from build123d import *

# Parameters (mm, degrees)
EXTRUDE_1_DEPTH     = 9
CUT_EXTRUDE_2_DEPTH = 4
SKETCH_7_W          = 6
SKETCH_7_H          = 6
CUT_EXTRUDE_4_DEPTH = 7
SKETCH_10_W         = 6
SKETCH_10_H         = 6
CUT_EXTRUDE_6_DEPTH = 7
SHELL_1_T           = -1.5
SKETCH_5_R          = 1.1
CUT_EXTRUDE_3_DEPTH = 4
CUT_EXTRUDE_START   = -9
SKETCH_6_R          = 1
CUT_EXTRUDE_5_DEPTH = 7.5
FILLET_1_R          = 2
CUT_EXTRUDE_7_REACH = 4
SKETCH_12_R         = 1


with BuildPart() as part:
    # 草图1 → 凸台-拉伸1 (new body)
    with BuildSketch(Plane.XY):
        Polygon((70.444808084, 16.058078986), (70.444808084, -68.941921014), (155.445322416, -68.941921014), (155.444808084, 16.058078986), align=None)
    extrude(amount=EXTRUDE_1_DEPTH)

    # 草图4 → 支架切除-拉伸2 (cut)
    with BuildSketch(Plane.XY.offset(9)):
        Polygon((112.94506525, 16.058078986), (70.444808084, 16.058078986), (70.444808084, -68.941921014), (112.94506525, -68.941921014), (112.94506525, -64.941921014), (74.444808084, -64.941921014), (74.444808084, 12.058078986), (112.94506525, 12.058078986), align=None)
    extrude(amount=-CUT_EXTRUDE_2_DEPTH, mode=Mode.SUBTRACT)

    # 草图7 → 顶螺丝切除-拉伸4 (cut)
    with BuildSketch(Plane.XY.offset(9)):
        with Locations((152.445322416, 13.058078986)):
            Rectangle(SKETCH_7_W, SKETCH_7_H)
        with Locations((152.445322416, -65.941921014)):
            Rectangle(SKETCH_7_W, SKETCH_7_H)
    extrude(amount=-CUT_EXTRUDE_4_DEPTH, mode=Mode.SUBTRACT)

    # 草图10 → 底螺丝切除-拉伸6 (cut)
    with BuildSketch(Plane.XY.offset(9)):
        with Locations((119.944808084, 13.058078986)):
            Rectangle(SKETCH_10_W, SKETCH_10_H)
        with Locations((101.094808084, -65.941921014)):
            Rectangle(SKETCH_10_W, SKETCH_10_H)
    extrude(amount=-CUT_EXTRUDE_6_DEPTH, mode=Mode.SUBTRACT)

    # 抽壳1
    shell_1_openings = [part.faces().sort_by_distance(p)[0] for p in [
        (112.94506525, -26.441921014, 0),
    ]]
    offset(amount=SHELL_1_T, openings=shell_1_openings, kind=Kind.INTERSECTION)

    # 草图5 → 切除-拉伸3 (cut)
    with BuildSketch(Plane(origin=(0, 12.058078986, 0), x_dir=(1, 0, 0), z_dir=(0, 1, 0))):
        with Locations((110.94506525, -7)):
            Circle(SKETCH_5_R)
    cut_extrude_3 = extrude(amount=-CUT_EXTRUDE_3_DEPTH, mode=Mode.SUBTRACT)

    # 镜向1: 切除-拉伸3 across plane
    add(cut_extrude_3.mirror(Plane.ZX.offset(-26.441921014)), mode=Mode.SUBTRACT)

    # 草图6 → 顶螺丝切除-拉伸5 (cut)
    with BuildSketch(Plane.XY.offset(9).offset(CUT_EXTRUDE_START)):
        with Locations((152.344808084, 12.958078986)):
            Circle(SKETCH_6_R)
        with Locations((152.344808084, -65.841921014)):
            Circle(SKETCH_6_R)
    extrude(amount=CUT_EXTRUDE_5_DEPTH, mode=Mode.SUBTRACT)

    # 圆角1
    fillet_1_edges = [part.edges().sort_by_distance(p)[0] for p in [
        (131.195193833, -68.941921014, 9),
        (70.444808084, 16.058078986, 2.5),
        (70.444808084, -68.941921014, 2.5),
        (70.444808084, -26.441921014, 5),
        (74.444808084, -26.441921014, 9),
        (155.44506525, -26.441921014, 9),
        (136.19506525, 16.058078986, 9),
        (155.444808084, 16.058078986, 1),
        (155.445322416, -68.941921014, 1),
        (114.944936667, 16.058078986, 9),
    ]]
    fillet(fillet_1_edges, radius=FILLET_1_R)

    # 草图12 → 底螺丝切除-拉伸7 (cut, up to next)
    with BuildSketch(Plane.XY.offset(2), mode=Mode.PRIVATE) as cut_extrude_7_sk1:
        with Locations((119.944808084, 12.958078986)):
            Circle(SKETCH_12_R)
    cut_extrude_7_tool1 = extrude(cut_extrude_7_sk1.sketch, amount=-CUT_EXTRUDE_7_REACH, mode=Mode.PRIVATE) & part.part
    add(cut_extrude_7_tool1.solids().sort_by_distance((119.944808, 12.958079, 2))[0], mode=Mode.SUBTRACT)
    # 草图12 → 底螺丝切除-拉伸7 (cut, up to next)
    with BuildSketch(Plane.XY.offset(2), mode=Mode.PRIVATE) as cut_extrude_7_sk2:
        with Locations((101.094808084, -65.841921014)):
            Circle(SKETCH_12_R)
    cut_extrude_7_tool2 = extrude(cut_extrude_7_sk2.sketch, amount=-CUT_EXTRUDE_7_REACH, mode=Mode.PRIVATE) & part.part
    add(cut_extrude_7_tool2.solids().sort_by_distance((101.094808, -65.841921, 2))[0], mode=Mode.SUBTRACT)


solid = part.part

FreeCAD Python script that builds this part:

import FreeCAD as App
import Part
import Sketcher

V = App.Vector


def edges_at(feature, points):
    """Names of the edges that pass closest to the given points."""
    edges = feature.Shape.Edges
    near = lambda p: min(range(len(edges)), key=lambda i: edges[i].distToShape(Part.Vertex(*p))[0])
    return sorted({f"Edge{near(p) + 1}" for p in points})


def faces_at(feature, points):
    """Names of the faces that lie closest to the given points."""
    faces = feature.Shape.Faces
    near = lambda p: min(range(len(faces)), key=lambda i: faces[i].distToShape(Part.Vertex(*p))[0])
    return sorted({f"Face{near(p) + 1}" for p in points})

doc = App.newDocument("Part")
body = doc.addObject("PartDesign::Body", "Body")

sketch1 = body.newObject("Sketcher::SketchObject", "Sketch")
sketch1.AttachmentSupport = (doc.getObject("XY_Plane"), [""])
sketch1.MapMode = "FlatFace"
sketch1.addGeometry(Part.LineSegment(V(70, 16, 0), V(70, -69, 0)), False)
sketch1.addGeometry(Part.LineSegment(V(70, -69, 0), V(155, -69, 0)), False)
sketch1.addGeometry(Part.LineSegment(V(155, -69, 0), V(155, 16, 0)), False)
sketch1.addGeometry(Part.LineSegment(V(155, 16, 0), V(70, 16, 0)), False)
sketch1.addConstraint(Sketcher.Constraint("Coincident", 0, 2, 1, 1))
sketch1.addConstraint(Sketcher.Constraint("Coincident", 1, 2, 2, 1))
sketch1.addConstraint(Sketcher.Constraint("Coincident", 2, 2, 3, 1))
sketch1.addConstraint(Sketcher.Constraint("Coincident", 3, 2, 0, 1))
sketch1.addConstraint(Sketcher.Constraint("Vertical", 0))
sketch1.addConstraint(Sketcher.Constraint("Horizontal", 1))
sketch1.addConstraint(Sketcher.Constraint("Horizontal", 3))
sketch1.addConstraint(Sketcher.Constraint("Equal", 3, 0))
sketch1.addConstraint(Sketcher.Constraint("DistanceX", 3, 2, 3, 1, 85.0))
sketch1.addConstraint(Sketcher.Constraint("DistanceX", 1, 1, 1, 2, 85.000514))
sketch1.addConstraint(Sketcher.Constraint("DistanceX", -1, 1, 0, 2, 70.444808))
sketch1.addConstraint(Sketcher.Constraint("DistanceY", 0, 2, -1, 1, 68.941921))
pad1 = body.newObject("PartDesign::Pad", "Pad")
pad1.Profile = sketch1
pad1.Length = 9

sketch2 = body.newObject("Sketcher::SketchObject", "Sketch001")
sketch2.AttachmentSupport = (doc.getObject("XY_Plane"), [""])
sketch2.MapMode = "FlatFace"
sketch2.AttachmentOffset = App.Placement(V(0, 0, 9), App.Rotation())
sketch2.addGeometry(Part.LineSegment(V(112.9, 16.1, 0), V(70.4, 16.1, 0)), False)
sketch2.addGeometry(Part.LineSegment(V(70.4, 16.1, 0), V(70.4, -68.9, 0)), False)
sketch2.addGeometry(Part.LineSegment(V(70.4, -68.9, 0), V(112.9, -68.9, 0)), False)
sketch2.addGeometry(Part.LineSegment(V(112.9, -68.9, 0), V(112.9, -64.9, 0)), False)
sketch2.addGeometry(Part.LineSegment(V(112.9, -64.9, 0), V(74.4, -64.9, 0)), False)
sketch2.addGeometry(Part.LineSegment(V(74.4, -64.9, 0), V(74.4, 12.1, 0)), False)
sketch2.addGeometry(Part.LineSegment(V(74.4, 12.1, 0), V(112.9, 12.1, 0)), False)
sketch2.addGeometry(Part.LineSegment(V(112.9, 12.1, 0), V(112.9, 16.1, 0)), False)
sketch2.addConstraint(Sketcher.Constraint("Coincident", 0, 2, 1, 1))
sketch2.addConstraint(Sketcher.Constraint("Coincident", 1, 2, 2, 1))
sketch2.addConstraint(Sketcher.Constraint("Coincident", 2, 2, 3, 1))
sketch2.addConstraint(Sketcher.Constraint("Coincident", 3, 2, 4, 1))
sketch2.addConstraint(Sketcher.Constraint("Coincident", 4, 2, 5, 1))
sketch2.addConstraint(Sketcher.Constraint("Coincident", 5, 2, 6, 1))
sketch2.addConstraint(Sketcher.Constraint("Coincident", 6, 2, 7, 1))
sketch2.addConstraint(Sketcher.Constraint("Coincident", 7, 2, 0, 1))
sketch2.addConstraint(Sketcher.Constraint("Horizontal", 0))
sketch2.addConstraint(Sketcher.Constraint("Vertical", 1))
sketch2.addConstraint(Sketcher.Constraint("Horizontal", 2))
sketch2.addConstraint(Sketcher.Constraint("Vertical", 3))
sketch2.addConstraint(Sketcher.Constraint("Horizontal", 4))
sketch2.addConstraint(Sketcher.Constraint("Vertical", 5))
sketch2.addConstraint(Sketcher.Constraint("Horizontal", 6))
sketch2.addConstraint(Sketcher.Constraint("Vertical", 7))
sketch2.addConstraint(Sketcher.Constraint("Vertical", 3, 2, 6, 2))
sketch2.addConstraint(Sketcher.Constraint("Equal", 3, 7))
sketch2.addConstraint(Sketcher.Constraint("DistanceY", 1, 2, 1, 1, 85.0))
sketch2.addConstraint(Sketcher.Constraint("DistanceY", 3, 1, 3, 2, 4.0))
sketch2.addConstraint(Sketcher.Constraint("DistanceX", 1, 2, 4, 2, 4.0))
sketch2.addConstraint(Sketcher.Constraint("DistanceX", 0, 2, 0, 1, 42.500257))
sketch2.addConstraint(Sketcher.Constraint("DistanceX", -1, 1, 0, 2, 70.444808))
sketch2.addConstraint(Sketcher.Constraint("DistanceY", -1, 1, 0, 2, 16.058079))
pocket1 = body.newObject("PartDesign::Pocket", "Pocket")
pocket1.Profile = sketch2
pocket1.Length = 4

sketch3 = body.newObject("Sketcher::SketchObject", "Sketch002")
sketch3.AttachmentSupport = (doc.getObject("XY_Plane"), [""])
sketch3.MapMode = "FlatFace"
sketch3.AttachmentOffset = App.Placement(V(0, 0, 9), App.Rotation())
sketch3.addGeometry(Part.LineSegment(V(149, 16, 0), V(149, 10, 0)), False)
sketch3.addGeometry(Part.LineSegment(V(149, 10, 0), V(155, 10, 0)), False)
sketch3.addGeometry(Part.LineSegment(V(155, 10, 0), V(155, 16, 0)), False)
sketch3.addGeometry(Part.LineSegment(V(155, 16, 0), V(149, 16, 0)), False)
sketch3.addGeometry(Part.LineSegment(V(149, -63, 0), V(149, -69, 0)), False)
sketch3.addGeometry(Part.LineSegment(V(149, -69, 0), V(155, -69, 0)), False)
sketch3.addGeometry(Part.LineSegment(V(155, -69, 0), V(155, -63, 0)), False)
sketch3.addGeometry(Part.LineSegment(V(155, -63, 0), V(149, -63, 0)), False)
sketch3.addConstraint(Sketcher.Constraint("Coincident", 0, 2, 1, 1))
sketch3.addConstraint(Sketcher.Constraint("Coincident", 1, 2, 2, 1))
sketch3.addConstraint(Sketcher.Constraint("Coincident", 2, 2, 3, 1))
sketch3.addConstraint(Sketcher.Constraint("Coincident", 3, 2, 0, 1))
sketch3.addConstraint(Sketcher.Constraint("Coincident", 4, 2, 5, 1))
sketch3.addConstraint(Sketcher.Constraint("Coincident", 5, 2, 6, 1))
sketch3.addConstraint(Sketcher.Constraint("Coincident", 6, 2, 7, 1))
sketch3.addConstraint(Sketcher.Constraint("Coincident", 7, 2, 4, 1))
sketch3.addConstraint(Sketcher.Constraint("Vertical", 0))
sketch3.addConstraint(Sketcher.Constraint("Horizontal", 1))
sketch3.addConstraint(Sketcher.Constraint("Vertical", 2))
sketch3.addConstraint(Sketcher.Constraint("Horizontal", 3))
sketch3.addConstraint(Sketcher.Constraint("Vertical", 4))
sketch3.addConstraint(Sketcher.Constraint("Horizontal", 5))
sketch3.addConstraint(Sketcher.Constraint("Vertical", 6))
sketch3.addConstraint(Sketcher.Constraint("Horizontal", 7))
sketch3.addConstraint(Sketcher.Constraint("Vertical", 3, 2, 4, 2))
sketch3.addConstraint(Sketcher.Constraint("Vertical", 2, 2, 5, 2))
sketch3.addConstraint(Sketcher.Constraint("Equal", 7, 0))
sketch3.addConstraint(Sketcher.Constraint("Equal", 2, 4))
sketch3.addConstraint(Sketcher.Constraint("DistanceX", 1, 1, 1, 2, 6.0))
sketch3.addConstraint(Sketcher.Constraint("DistanceY", 4, 2, 0, 2, 79.0))
sketch3.addConstraint(Sketcher.Constraint("DistanceY", -1, 1, 0, 2, 10.058079))
sketch3.addConstraint(Sketcher.Constraint("DistanceX", -1, 1, 0, 2, 149.445322))
pocket2 = body.newObject("PartDesign::Pocket", "Pocket001")
pocket2.Profile = sketch3
pocket2.Length = 7

sketch4 = body.newObject("Sketcher::SketchObject", "Sketch003")
sketch4.AttachmentSupport = (doc.getObject("XY_Plane"), [""])
sketch4.MapMode = "FlatFace"
sketch4.AttachmentOffset = App.Placement(V(0, 0, 9), App.Rotation())
sketch4.addGeometry(Part.LineSegment(V(117, 16, 0), V(117, 10, 0)), False)
sketch4.addGeometry(Part.LineSegment(V(117, 10, 0), V(123, 10, 0)), False)
sketch4.addGeometry(Part.LineSegment(V(123, 10, 0), V(123, 16, 0)), False)
sketch4.addGeometry(Part.LineSegment(V(123, 16, 0), V(117, 16, 0)), False)
sketch4.addGeometry(Part.LineSegment(V(98, -63, 0), V(98, -69, 0)), False)
sketch4.addGeometry(Part.LineSegment(V(98, -69, 0), V(104, -69, 0)), False)
sketch4.addGeometry(Part.LineSegment(V(104, -69, 0), V(104, -63, 0)), False)
sketch4.addGeometry(Part.LineSegment(V(104, -63, 0), V(98, -63, 0)), False)
sketch4.addConstraint(Sketcher.Constraint("Coincident", 0, 2, 1, 1))
sketch4.addConstraint(Sketcher.Constraint("Coincident", 1, 2, 2, 1))
sketch4.addConstraint(Sketcher.Constraint("Coincident", 2, 2, 3, 1))
sketch4.addConstraint(Sketcher.Constraint("Coincident", 3, 2, 0, 1))
sketch4.addConstraint(Sketcher.Constraint("Coincident", 4, 2, 5, 1))
sketch4.addConstraint(Sketcher.Constraint("Coincident", 5, 2, 6, 1))
sketch4.addConstraint(Sketcher.Constraint("Coincident", 6, 2, 7, 1))
sketch4.addConstraint(Sketcher.Constraint("Coincident", 7, 2, 4, 1))
sketch4.addConstraint(Sketcher.Constraint("Vertical", 0))
sketch4.addConstraint(Sketcher.Constraint("Horizontal", 1))
sketch4.addConstraint(Sketcher.Constraint("Vertical", 2))
sketch4.addConstraint(Sketcher.Constraint("Horizontal", 3))
sketch4.addConstraint(Sketcher.Constraint("Vertical", 4))
sketch4.addConstraint(Sketcher.Constraint("Horizontal", 5))
sketch4.addConstraint(Sketcher.Constraint("Vertical", 6))
sketch4.addConstraint(Sketcher.Constraint("Horizontal", 7))
sketch4.addConstraint(Sketcher.Constraint("Equal", 3, 5))
sketch4.addConstraint(Sketcher.Constraint("Equal", 7, 0))
sketch4.addConstraint(Sketcher.Constraint("Equal", 2, 4))
sketch4.addConstraint(Sketcher.Constraint("DistanceX", 1, 1, 1, 2, 6.0))
sketch4.addConstraint(Sketcher.Constraint("DistanceY", 4, 2, 0, 2, 79.0))
sketch4.addConstraint(Sketcher.Constraint("DistanceX", 4, 2, 0, 2, 18.85))
sketch4.addConstraint(Sketcher.Constraint("DistanceX", -1, 1, 0, 2, 116.944808))
sketch4.addConstraint(Sketcher.Constraint("DistanceY", -1, 1, 0, 2, 10.058079))
pocket3 = body.newObject("PartDesign::Pocket", "Pocket002")
pocket3.Profile = sketch4
pocket3.Length = 7
doc.recompute()

thickness = body.newObject("PartDesign::Thickness", "Thickness")
thickness.Base = (pocket3, faces_at(pocket3, [(112.945, -26.442, 0)]))
thickness.Value = 1.5
thickness.Reversed = True
thickness.Join = "Intersection"

sketch5 = body.newObject("Sketcher::SketchObject", "Sketch004")
sketch5.AttachmentSupport = (doc.getObject("XZ_Plane"), [""])
sketch5.MapMode = "FlatFace"
sketch5.AttachmentOffset = App.Placement(V(0, 0, -12.058079), App.Rotation())
sketch5.addGeometry(Part.Circle(V(110.9, 7, 0), V(0, 0, 1), 1.1), False)
sketch5.addConstraint(Sketcher.Constraint("Diameter", 0, 2.2))
sketch5.addConstraint(Sketcher.Constraint("DistanceY", -1, 1, 0, 3, 7.0))
sketch5.addConstraint(Sketcher.Constraint("DistanceX", -1, 1, 0, 3, 110.945065))
pocket4 = body.newObject("PartDesign::Pocket", "Pocket003")
pocket4.Profile = sketch5
pocket4.Length = 4
pocket4.Reversed = True
doc.recompute()

datumplane = body.newObject("PartDesign::Plane", "DatumPlane")
datumplane.AttachmentSupport = (doc.getObject("XZ_Plane"), [""])
datumplane.MapMode = "FlatFace"
datumplane.AttachmentOffset = App.Placement(V(0, 0, 26.441921), App.Rotation())
mirrored = body.newObject("PartDesign::Mirrored", "Mirrored")
mirrored.Originals = [pocket4]
mirrored.MirrorPlane = (datumplane, [""])
body.Tip = mirrored

sketch6 = body.newObject("Sketcher::SketchObject", "Sketch005")
sketch6.AttachmentSupport = (doc.getObject("XY_Plane"), [""])
sketch6.MapMode = "FlatFace"
sketch6.addGeometry(Part.Circle(V(152.3, 13, 0), V(0, 0, 1), 1), False)
sketch6.addGeometry(Part.Circle(V(152.3, -65.8, 0), V(0, 0, 1), 1), False)
sketch6.addConstraint(Sketcher.Constraint("Equal", 0, 1))
sketch6.addConstraint(Sketcher.Constraint("Vertical", 0, 3, 1, 3))
sketch6.addConstraint(Sketcher.Constraint("Diameter", 0, 2.0))
sketch6.addConstraint(Sketcher.Constraint("DistanceY", 1, 3, 0, 3, 78.8))
sketch6.addConstraint(Sketcher.Constraint("DistanceX", -1, 1, 0, 3, 152.344808))
sketch6.addConstraint(Sketcher.Constraint("DistanceY", -1, 1, 0, 3, 12.958079))
pocket5 = body.newObject("PartDesign::Pocket", "Pocket004")
pocket5.Profile = sketch6
pocket5.Length = 7.5
pocket5.Reversed = True
doc.recompute()

fillet = body.newObject("PartDesign::Fillet", "Fillet")
fillet.Base = (pocket5, edges_at(pocket5, [
    (131.195, -68.942, 9),
    (70.445, 16.058, 2.5),
    (70.445, -68.942, 2.5),
    (70.445, -26.442, 5),
    (74.445, -26.442, 9),
    (155.445, -26.442, 9),
    (136.195, 16.058, 9),
    (155.445, 16.058, 1),
    (155.445, -68.942, 1),
    (114.945, 16.058, 9),
]))
fillet.Radius = 2

sketch7 = body.newObject("Sketcher::SketchObject", "Sketch006")
sketch7.AttachmentSupport = (doc.getObject("XY_Plane"), [""])
sketch7.MapMode = "FlatFace"
sketch7.AttachmentOffset = App.Placement(V(0, 0, 2), App.Rotation())
sketch7.addGeometry(Part.Circle(V(119.9, 13, 0), V(0, 0, 1), 1), False)
sketch7.addConstraint(Sketcher.Constraint("Diameter", 0, 2.0))
sketch7.addConstraint(Sketcher.Constraint("DistanceX", -1, 1, 0, 3, 119.944808))
sketch7.addConstraint(Sketcher.Constraint("DistanceY", -1, 1, 0, 3, 12.958079))
pocket6 = body.newObject("PartDesign::Pocket", "Pocket005")
pocket6.Profile = sketch7
pocket6.Type = "UpToFirst"

sketch8 = body.newObject("Sketcher::SketchObject", "Sketch007")
sketch8.AttachmentSupport = (doc.getObject("XY_Plane"), [""])
sketch8.MapMode = "FlatFace"
sketch8.AttachmentOffset = App.Placement(V(0, 0, 2), App.Rotation())
sketch8.addGeometry(Part.Circle(V(101.1, -65.8, 0), V(0, 0, 1), 1), False)
sketch8.addConstraint(Sketcher.Constraint("Diameter", 0, 2.0))
sketch8.addConstraint(Sketcher.Constraint("DistanceX", -1, 1, 0, 3, 101.094808))
sketch8.addConstraint(Sketcher.Constraint("DistanceY", 0, 3, -1, 1, 65.841921))
pocket7 = body.newObject("PartDesign::Pocket", "Pocket006")
pocket7.Profile = sketch8
pocket7.Type = "UpToFirst"

doc.recompute()
